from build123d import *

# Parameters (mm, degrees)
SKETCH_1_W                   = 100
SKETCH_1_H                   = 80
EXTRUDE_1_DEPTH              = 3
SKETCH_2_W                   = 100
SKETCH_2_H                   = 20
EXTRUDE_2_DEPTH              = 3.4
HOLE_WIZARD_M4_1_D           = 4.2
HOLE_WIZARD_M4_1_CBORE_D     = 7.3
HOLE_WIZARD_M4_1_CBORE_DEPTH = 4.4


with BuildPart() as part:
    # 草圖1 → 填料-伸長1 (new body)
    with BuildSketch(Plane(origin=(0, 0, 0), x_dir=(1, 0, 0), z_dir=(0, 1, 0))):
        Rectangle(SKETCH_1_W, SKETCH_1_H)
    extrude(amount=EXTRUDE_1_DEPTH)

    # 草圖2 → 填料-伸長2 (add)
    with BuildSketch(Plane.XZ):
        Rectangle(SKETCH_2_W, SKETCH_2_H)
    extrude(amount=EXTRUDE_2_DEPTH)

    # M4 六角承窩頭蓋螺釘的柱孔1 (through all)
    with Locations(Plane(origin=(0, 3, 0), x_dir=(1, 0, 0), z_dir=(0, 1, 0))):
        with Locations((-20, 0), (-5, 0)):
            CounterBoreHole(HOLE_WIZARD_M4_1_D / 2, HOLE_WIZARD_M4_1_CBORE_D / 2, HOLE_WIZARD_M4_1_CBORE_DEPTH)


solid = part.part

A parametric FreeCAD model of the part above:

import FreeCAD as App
import Part
import Sketcher

V = App.Vector


def add_polygon(sketch, points):
    """Adds a closed chain of lines whose ends are joined by coincident constraints."""
    first, n = sketch.GeometryCount, len(points)
    for a, b in zip(points, points[1:] + points[:1]):
        sketch.addGeometry(Part.LineSegment(App.Vector(*a, 0), App.Vector(*b, 0)), False)
    for i in range(n):
        sketch.addConstraint(Sketcher.Constraint("Coincident", first + i, 2, first + (i + 1) % n, 1))

doc = App.newDocument("Part")
body = doc.addObject("PartDesign::Body", "Body")

# Sketch on XZ plane
sketch1 = body.newObject("Sketcher::SketchObject", "Sketch")
sketch1.AttachmentSupport = (doc.getObject("XZ_Plane"), [""])
sketch1.MapMode = "FlatFace"
add_polygon(sketch1, [(-50, -40), (-50, 40), (50, 40), (50, -40)])  # lines 0-3
sketch1.addConstraint([
    Sketcher.Constraint("Vertical", 0),
    Sketcher.Constraint("Horizontal", 1),
    Sketcher.Constraint("Vertical", 2),
    Sketcher.Constraint("Horizontal", 3),
    Sketcher.Constraint("Symmetric", 0, 2, 2, 2, -1, 1),
    Sketcher.Constraint("DistanceX", 1, 1, 1, 2, 100.0),
    Sketcher.Constraint("DistanceY", 0, 1, 0, 2, 80.0),
])
pad1 = body.newObject("PartDesign::Pad", "Pad")
pad1.Profile = sketch1
pad1.Length = 3
pad1.Reversed = True

# Sketch on XZ plane
sketch2 = body.newObject("Sketcher::SketchObject", "Sketch001")
sketch2.AttachmentSupport = (doc.getObject("XZ_Plane"), [""])
sketch2.MapMode = "FlatFace"
add_polygon(sketch2, [(-50, 10), (-50, -10), (50, -10), (50, 10)])  # lines 0-3
sketch2.addConstraint([
    Sketcher.Constraint("Vertical", 0),
    Sketcher.Constraint("Horizontal", 1),
    Sketcher.Constraint("Vertical", 2),
    Sketcher.Constraint("Horizontal", 3),
    Sketcher.Constraint("Symmetric", 0, 2, 2, 2, -1, 1),
    Sketcher.Constraint("DistanceX", 1, 1, 1, 2, 100.0),
    Sketcher.Constraint("DistanceY", 0, 2, 0, 1, 20.0),
])
pad2 = body.newObject("PartDesign::Pad", "Pad001")
pad2.Profile = sketch2
pad2.Length = 3.4

# Sketch on XZ plane
sketch3 = body.newObject("Sketcher::SketchObject", "Sketch002")
sketch3.AttachmentSupport = (doc.getObject("XZ_Plane"), [""])
sketch3.MapMode = "FlatFace"
sketch3.AttachmentOffset = App.Placement(V(0, 0, -3), App.Rotation())
sketch3.addGeometry([
    Part.Circle(V(-20, 0, 0), V(0, 0, 1), 2.1),
    Part.Circle(V(-5, 0, 0), V(0, 0, 1), 2.1),
], False)
sketch3.addConstraint([
    Sketcher.Constraint("Equal", 0, 1),
    Sketcher.Constraint("PointOnObject", 0, 3, -1),
    Sketcher.Constraint("PointOnObject", 1, 3, -1),
    Sketcher.Constraint("Diameter", 0, 4.2),
    Sketcher.Constraint("DistanceX", 0, 3, -1, 1, 20.0),
    Sketcher.Constraint("DistanceX", 1, 3, -1, 1, 5.0),
])
doc.recompute()
hole = body.newObject("PartDesign::Hole", "Hole")
hole.Profile = sketch3
hole.ThreadType = "None"
hole.Diameter = 4.2
hole.DepthType = "ThroughAll"
hole.HoleCutType = "Counterbore"
hole.HoleCutDiameter = 7.3
hole.HoleCutDepth = 4.4
hole.Reversed = True

doc.recompute()
